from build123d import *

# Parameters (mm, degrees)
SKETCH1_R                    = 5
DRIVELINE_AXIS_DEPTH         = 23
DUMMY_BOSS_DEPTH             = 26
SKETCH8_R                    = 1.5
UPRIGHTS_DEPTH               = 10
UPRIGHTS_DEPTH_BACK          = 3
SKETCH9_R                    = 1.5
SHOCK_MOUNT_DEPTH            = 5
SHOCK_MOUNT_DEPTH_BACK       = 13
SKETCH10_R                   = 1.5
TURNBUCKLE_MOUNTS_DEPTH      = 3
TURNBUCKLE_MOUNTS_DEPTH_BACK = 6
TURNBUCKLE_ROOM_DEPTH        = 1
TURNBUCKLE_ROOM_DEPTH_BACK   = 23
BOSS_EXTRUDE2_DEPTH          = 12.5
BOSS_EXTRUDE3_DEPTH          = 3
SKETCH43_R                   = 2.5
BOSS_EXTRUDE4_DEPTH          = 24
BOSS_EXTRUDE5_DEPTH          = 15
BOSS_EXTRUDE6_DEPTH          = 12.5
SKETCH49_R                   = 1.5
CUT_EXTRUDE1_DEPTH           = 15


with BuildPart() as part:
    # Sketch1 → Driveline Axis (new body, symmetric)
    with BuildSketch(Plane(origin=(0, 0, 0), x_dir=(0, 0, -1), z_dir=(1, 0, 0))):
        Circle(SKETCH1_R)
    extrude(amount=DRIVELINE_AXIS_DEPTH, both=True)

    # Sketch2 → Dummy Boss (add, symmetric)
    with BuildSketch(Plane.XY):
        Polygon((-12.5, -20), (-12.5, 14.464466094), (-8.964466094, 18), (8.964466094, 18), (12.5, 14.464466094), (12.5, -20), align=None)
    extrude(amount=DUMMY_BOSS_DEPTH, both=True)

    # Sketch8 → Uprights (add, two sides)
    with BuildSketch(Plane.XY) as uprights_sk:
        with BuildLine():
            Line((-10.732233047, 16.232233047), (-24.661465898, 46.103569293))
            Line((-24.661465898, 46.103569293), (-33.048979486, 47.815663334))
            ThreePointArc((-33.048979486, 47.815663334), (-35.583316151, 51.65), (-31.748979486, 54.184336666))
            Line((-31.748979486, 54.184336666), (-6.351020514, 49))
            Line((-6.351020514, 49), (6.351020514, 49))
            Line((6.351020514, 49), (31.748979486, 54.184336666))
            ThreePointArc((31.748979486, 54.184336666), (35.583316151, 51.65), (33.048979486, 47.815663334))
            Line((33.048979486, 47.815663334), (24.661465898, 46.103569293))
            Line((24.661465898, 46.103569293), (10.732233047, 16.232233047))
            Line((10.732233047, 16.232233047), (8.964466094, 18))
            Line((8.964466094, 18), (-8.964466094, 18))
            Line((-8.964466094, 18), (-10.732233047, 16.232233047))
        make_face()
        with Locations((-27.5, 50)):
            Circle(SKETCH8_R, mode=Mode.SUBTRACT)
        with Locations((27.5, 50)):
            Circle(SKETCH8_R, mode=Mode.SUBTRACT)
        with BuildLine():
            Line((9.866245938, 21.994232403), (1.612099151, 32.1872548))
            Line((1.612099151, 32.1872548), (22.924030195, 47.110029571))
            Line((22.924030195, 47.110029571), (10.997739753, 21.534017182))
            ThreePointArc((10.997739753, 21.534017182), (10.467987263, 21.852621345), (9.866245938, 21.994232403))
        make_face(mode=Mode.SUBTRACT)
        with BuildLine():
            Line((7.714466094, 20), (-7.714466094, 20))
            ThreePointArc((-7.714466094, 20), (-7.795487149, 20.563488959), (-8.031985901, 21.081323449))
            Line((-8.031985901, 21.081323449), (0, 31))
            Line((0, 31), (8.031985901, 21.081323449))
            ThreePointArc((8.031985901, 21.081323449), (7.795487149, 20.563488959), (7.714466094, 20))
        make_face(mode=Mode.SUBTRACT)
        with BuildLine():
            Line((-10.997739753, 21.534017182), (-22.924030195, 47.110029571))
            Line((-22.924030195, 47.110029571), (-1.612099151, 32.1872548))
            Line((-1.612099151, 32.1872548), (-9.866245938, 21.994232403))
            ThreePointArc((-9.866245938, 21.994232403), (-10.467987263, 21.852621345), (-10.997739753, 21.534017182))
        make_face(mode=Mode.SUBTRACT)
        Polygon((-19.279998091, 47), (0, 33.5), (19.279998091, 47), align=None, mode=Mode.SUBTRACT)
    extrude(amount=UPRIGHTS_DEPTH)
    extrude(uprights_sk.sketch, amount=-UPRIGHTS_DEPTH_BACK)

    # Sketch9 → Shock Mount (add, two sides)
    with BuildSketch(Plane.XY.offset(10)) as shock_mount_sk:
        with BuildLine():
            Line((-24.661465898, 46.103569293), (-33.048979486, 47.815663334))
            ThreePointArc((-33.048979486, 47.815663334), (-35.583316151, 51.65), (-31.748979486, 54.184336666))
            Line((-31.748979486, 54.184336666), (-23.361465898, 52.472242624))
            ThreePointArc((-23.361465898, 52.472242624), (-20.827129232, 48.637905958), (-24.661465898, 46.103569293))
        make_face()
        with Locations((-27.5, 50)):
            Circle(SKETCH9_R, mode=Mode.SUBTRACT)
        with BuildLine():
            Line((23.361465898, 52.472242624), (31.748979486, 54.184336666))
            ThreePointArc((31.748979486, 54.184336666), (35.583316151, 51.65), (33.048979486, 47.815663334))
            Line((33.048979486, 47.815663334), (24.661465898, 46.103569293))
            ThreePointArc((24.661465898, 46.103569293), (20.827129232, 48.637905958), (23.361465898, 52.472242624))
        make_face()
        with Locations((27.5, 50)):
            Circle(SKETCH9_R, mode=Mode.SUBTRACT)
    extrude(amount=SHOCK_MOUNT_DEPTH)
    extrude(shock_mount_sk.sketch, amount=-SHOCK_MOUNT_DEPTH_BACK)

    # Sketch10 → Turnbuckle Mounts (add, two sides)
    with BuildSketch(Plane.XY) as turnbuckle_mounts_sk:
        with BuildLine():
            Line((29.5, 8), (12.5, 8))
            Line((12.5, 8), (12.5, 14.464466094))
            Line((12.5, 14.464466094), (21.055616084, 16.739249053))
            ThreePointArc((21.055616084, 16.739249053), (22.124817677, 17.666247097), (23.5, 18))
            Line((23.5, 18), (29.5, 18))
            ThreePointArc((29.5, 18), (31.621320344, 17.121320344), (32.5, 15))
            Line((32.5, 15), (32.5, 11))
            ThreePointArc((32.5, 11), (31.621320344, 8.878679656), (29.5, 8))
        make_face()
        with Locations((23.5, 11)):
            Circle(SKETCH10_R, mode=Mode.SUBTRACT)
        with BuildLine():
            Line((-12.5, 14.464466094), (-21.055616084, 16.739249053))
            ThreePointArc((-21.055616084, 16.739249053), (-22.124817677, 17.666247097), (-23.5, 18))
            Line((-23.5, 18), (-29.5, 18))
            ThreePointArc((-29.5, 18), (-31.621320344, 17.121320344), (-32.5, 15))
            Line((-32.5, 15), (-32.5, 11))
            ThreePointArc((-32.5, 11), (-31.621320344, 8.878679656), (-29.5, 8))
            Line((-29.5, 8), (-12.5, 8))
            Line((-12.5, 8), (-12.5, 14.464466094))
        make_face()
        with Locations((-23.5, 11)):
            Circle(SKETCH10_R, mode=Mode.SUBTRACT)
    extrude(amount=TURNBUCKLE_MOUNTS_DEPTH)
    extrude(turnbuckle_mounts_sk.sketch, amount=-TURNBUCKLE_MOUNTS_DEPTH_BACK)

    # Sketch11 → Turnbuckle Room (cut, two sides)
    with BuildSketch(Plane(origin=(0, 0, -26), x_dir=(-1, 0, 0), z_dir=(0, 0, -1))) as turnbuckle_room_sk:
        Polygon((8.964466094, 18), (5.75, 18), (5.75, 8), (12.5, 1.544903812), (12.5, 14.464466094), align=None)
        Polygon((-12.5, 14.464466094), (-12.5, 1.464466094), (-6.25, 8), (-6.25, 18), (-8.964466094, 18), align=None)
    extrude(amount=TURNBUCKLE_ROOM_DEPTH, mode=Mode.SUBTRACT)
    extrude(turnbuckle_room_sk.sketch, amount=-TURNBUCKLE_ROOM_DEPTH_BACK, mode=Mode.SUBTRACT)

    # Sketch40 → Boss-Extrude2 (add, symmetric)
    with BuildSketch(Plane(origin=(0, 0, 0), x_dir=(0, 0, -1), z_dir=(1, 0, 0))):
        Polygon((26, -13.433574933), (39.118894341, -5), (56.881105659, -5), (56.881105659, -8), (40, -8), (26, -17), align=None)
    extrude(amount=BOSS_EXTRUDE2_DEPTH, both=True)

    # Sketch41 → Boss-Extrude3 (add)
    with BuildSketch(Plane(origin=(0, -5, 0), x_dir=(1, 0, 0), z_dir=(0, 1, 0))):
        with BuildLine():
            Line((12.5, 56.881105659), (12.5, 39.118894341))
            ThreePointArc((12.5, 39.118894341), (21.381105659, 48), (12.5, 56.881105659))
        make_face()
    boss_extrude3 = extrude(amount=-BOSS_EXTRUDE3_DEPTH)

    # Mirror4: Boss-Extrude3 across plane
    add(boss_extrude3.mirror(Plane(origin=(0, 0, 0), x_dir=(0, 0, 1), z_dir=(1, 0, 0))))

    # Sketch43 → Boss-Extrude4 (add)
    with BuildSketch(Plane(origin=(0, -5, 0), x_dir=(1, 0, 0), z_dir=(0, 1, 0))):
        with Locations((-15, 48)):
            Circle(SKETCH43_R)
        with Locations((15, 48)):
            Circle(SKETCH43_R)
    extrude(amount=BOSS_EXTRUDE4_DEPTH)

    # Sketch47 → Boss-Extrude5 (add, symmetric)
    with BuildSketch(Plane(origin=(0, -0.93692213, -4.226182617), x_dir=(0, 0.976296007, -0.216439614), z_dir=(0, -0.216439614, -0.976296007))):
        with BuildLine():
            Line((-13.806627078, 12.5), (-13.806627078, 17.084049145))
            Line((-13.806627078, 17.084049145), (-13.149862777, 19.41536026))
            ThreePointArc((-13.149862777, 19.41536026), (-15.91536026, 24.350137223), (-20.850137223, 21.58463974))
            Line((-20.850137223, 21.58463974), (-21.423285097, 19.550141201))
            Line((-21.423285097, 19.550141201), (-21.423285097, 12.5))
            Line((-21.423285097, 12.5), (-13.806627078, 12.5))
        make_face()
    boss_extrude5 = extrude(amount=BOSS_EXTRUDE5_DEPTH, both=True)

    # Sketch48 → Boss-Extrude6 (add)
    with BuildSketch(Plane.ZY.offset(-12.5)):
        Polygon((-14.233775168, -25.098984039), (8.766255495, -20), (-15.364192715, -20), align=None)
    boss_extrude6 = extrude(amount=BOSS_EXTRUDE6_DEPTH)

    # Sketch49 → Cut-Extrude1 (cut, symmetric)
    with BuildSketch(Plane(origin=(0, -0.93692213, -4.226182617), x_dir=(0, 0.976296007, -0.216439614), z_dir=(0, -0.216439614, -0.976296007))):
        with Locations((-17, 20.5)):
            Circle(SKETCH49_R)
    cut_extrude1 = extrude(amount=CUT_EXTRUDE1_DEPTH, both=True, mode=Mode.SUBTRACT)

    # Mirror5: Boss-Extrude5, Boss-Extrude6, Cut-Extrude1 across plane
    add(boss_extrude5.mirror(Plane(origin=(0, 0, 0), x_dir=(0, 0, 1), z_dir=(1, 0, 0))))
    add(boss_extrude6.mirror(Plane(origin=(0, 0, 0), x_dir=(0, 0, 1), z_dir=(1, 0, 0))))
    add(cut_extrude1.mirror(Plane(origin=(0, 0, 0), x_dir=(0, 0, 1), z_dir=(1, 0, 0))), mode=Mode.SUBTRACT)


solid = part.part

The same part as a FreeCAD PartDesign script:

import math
import FreeCAD as App
import Part
import Sketcher
Q = App.Units.Quantity


def add_polygon(sketch, points):
    """Adds a closed chain of lines whose ends are joined by coincident constraints."""
    first, n = sketch.GeometryCount, len(points)
    for a, b in zip(points, points[1:] + points[:1]):
        sketch.addGeometry(Part.LineSegment(App.Vector(*a, 0), App.Vector(*b, 0)), False)
    for i in range(n):
        sketch.addConstraint(Sketcher.Constraint("Coincident", first + i, 2, first + (i + 1) % n, 1))

doc = App.newDocument("Part")
params = doc.addObject("Spreadsheet::Sheet", "Params")
for row, (alias, value) in enumerate([
    ("sketch1_diameter", "10 mm"),
    ("pad1_length", "46 mm"),
    ("sketch2_width", "25 mm"),
    ("sketch2_length", "5 mm"),
    ("pad2_length", "52 mm"),
    ("sketch3_diameter", "3 mm"),
    ("sketch3_radius", "2 mm"),
    ("sketch3_radius2", "3.25 mm"),
    ("sketch3_length", "2.5 mm"),
    ("pad3_length", "10 mm"),
    ("pad3_length2", "3 mm"),
    ("sketch4_diameter", "3 mm"),
    ("sketch4_radius", "3.25 mm"),
    ("pad4_length", "5 mm"),
    ("pad4_length2", "13 mm"),
    ("sketch5_diameter", "3 mm"),
    ("sketch5_radius", "3 mm"),
    ("sketch5_width", "17 mm"),
    ("sketch5_width2", "6 mm"),
    ("sketch5_height", "4 mm"),
    ("pad5_length", "3 mm"),
    ("pad5_length2", "6 mm"),
    ("sketch6_height", "10 mm"),
    ("sketch6_height2", "13 mm"),
    ("sketch6_length", "5 mm"),
    ("pocket1_length", "1 mm"),
    ("pocket1_length2", "23 mm"),
    ("sketch7_width", "3 mm"),
    ("pad6_length", "25 mm"),
    ("pad7_length", "3 mm"),
    ("sketch9_diameter", "5 mm"),
    ("pad8_length", "24 mm"),
    ("sketch10_radius", "4 mm"),
    ("pad9_length", "30 mm"),
    ("pad10_length", "12.5 mm"),
    ("sketch12_diameter", "3 mm"),
    ("pocket2_length", "30 mm"),
], start=1):
    params.set(f"A{row}", alias)
    params.set(f"B{row}", "=" + value)
    params.setAlias(f"B{row}", alias)

body = doc.addObject("PartDesign::Body", "Body")

# Sketch on YZ plane
sketch1 = body.newObject("Sketcher::SketchObject", "Sketch")
sketch1.AttachmentSupport = (doc.getObject("YZ_Plane"), [""])
sketch1.MapMode = "FlatFace"
sketch1.addGeometry(Part.Circle(App.Vector(0, 0, 0), App.Vector(0, 0, 1), 5), False)
sketch1.addConstraint(Sketcher.Constraint("Coincident", 0, 3, -1, 1))
sketch1.addConstraint(Sketcher.Constraint("Diameter", 0, 10.0))
sketch1.setExpression("Constraints[1]", "Params.sketch1_diameter")
pad1 = body.newObject("PartDesign::Pad", "Pad")
pad1.Profile = sketch1
pad1.setExpression("Length", "Params.pad1_length")
pad1.Midplane = True

# Sketch on XY plane
sketch2 = body.newObject("Sketcher::SketchObject", "Sketch001")
sketch2.AttachmentSupport = (doc.getObject("XY_Plane"), [""])
sketch2.MapMode = "FlatFace"
add_polygon(sketch2, [(-12.5, 14.464466), (-12.5, -20), (12.5, -20), (12.5, 14.464466), (8.964466, 18), (-8.964466, 18)])  # lines 0-5
sketch2.addConstraint(Sketcher.Constraint("Vertical", 0))
sketch2.addConstraint(Sketcher.Constraint("Horizontal", 1))
sketch2.addConstraint(Sketcher.Constraint("Vertical", 2))
sketch2.addConstraint(Sketcher.Constraint("Horizontal", 4))
sketch2.addConstraint(Sketcher.Constraint("Symmetric", 2, 2, 5, 2, -2))
sketch2.addConstraint(Sketcher.Constraint("Perpendicular", 3, 5))
sketch2.addConstraint(Sketcher.Constraint("Equal", 3, 5))
sketch2.addConstraint(Sketcher.Constraint("DistanceX", 1, 1, 1, 2, 25.0))
sketch2.addConstraint(Sketcher.Constraint("Distance", 3, 5.0))
sketch2.addConstraint(Sketcher.Constraint("DistanceY", 0, 2, -1, 1, 20.0))
sketch2.addConstraint(Sketcher.Constraint("DistanceY", -1, 1, 3, 2, 18.0))
sketch2.setExpression("Constraints[13]", "Params.sketch2_width")
sketch2.setExpression("Constraints[14]", "Params.sketch2_length")
pad2 = body.newObject("PartDesign::Pad", "Pad001")
pad2.Profile = sketch2
pad2.setExpression("Length", "Params.pad2_length")
pad2.Midplane = True

# Sketch on XY plane
sketch3 = body.newObject("Sketcher::SketchObject", "Sketch002")
sketch3.AttachmentSupport = (doc.getObject("XY_Plane"), [""])
sketch3.MapMode = "FlatFace"
sketch3.addGeometry(Part.LineSegment(App.Vector(-24.661466, 46.103569, 0), App.Vector(-10.732233, 16.232233, 0)), False)  # 0
sketch3.addGeometry(Part.LineSegment(App.Vector(-10.732233, 16.232233, 0), App.Vector(-8.964466, 18, 0)), False)  # 1
sketch3.addGeometry(Part.LineSegment(App.Vector(-8.964466, 18, 0), App.Vector(8.964466, 18, 0)), False)  # 2
sketch3.addGeometry(Part.LineSegment(App.Vector(8.964466, 18, 0), App.Vector(10.732233, 16.232233, 0)), False)  # 3
sketch3.addGeometry(Part.LineSegment(App.Vector(10.732233, 16.232233, 0), App.Vector(24.661466, 46.103569, 0)), False)  # 4
sketch3.addGeometry(Part.LineSegment(App.Vector(24.661466, 46.103569, 0), App.Vector(33.048979, 47.815663, 0)), False)  # 5
sketch3.addGeometry(Part.ArcOfCircle(Part.Circle(App.Vector(32.398979, 51, 0), App.Vector(0, 0, 1), 3.25), math.radians(-78.463041), math.radians(101.536959)), False)  # 6
sketch3.addGeometry(Part.LineSegment(App.Vector(31.748979, 54.184337, 0), App.Vector(6.351021, 49, 0)), False)  # 7
sketch3.addGeometry(Part.LineSegment(App.Vector(6.351021, 49, 0), App.Vector(-6.351021, 49, 0)), False)  # 8
sketch3.addGeometry(Part.LineSegment(App.Vector(-6.351021, 49, 0), App.Vector(-31.748979, 54.184337, 0)), False)  # 9
sketch3.addGeometry(Part.ArcOfCircle(Part.Circle(App.Vector(-32.398979, 51, 0), App.Vector(0, 0, 1), 3.25), math.radians(78.463041), math.radians(258.463041)), False)  # 10
sketch3.addGeometry(Part.LineSegment(App.Vector(-33.048979, 47.815663, 0), App.Vector(-24.661466, 46.103569, 0)), False)  # 11
sketch3.addGeometry(Part.LineSegment(App.Vector(9.866246, 21.994232, 0), App.Vector(1.612099, 32.187255, 0)), False)  # 12
sketch3.addGeometry(Part.LineSegment(App.Vector(1.612099, 32.187255, 0), App.Vector(22.92403, 47.11003, 0)), False)  # 13
sketch3.addGeometry(Part.LineSegment(App.Vector(22.92403, 47.11003, 0), App.Vector(10.99774, 21.534017, 0)), False)  # 14
sketch3.addGeometry(Part.ArcOfCircle(Part.Circle(App.Vector(9.714466, 20, 0), App.Vector(0, 0, 1), 2), math.radians(50.086018), math.radians(85.647643)), False)  # 15
sketch3.addGeometry(Part.LineSegment(App.Vector(7.714466, 20, 0), App.Vector(-7.714466, 20, 0)), False)  # 16
sketch3.addGeometry(Part.ArcOfCircle(Part.Circle(App.Vector(-9.714466, 20, 0), App.Vector(0, 0, 1), 2), math.radians(0), math.radians(32.728697)), False)  # 17
sketch3.addGeometry(Part.LineSegment(App.Vector(-8.031986, 21.081323, 0), App.Vector(0, 31, 0)), False)  # 18
sketch3.addGeometry(Part.LineSegment(App.Vector(0, 31, 0), App.Vector(8.031986, 21.081323, 0)), False)  # 19
sketch3.addGeometry(Part.ArcOfCircle(Part.Circle(App.Vector(9.714466, 20, 0), App.Vector(0, 0, 1), 2), math.radians(147.271303), math.radians(180)), False)  # 20
sketch3.addGeometry(Part.LineSegment(App.Vector(-10.99774, 21.534017, 0), App.Vector(-22.92403, 47.11003, 0)), False)  # 21
sketch3.addGeometry(Part.LineSegment(App.Vector(-22.92403, 47.11003, 0), App.Vector(-1.612099, 32.187255, 0)), False)  # 22
sketch3.addGeometry(Part.LineSegment(App.Vector(-1.612099, 32.187255, 0), App.Vector(-9.866246, 21.994232, 0)), False)  # 23
sketch3.addGeometry(Part.ArcOfCircle(Part.Circle(App.Vector(-9.714466, 20, 0), App.Vector(0, 0, 1), 2), math.radians(94.352357), math.radians(129.913982)), False)  # 24
sketch3.addGeometry(Part.Circle(App.Vector(27.5, 50, 0), App.Vector(0, 0, 1), 1.5), False)  # 25
add_polygon(sketch3, [(-19.279998, 47), (19.279998, 47), (0, 33.5)])  # lines 26-28
sketch3.addGeometry(Part.Circle(App.Vector(-27.5, 50, 0), App.Vector(0, 0, 1), 1.5), False)  # 29
sketch3.addConstraint(Sketcher.Constraint("Coincident", 0, 2, 1, 1))
sketch3.addConstraint(Sketcher.Constraint("Coincident", 1, 2, 2, 1))
sketch3.addConstraint(Sketcher.Constraint("Coincident", 2, 2, 3, 1))
sketch3.addConstraint(Sketcher.Constraint("Coincident", 3, 2, 4, 1))
sketch3.addConstraint(Sketcher.Constraint("Coincident", 4, 2, 5, 1))
sketch3.addConstraint(Sketcher.Constraint("Tangent", 5, 2, 6, 1))
sketch3.addConstraint(Sketcher.Constraint("Tangent", 6, 2, 7, 1))
sketch3.addConstraint(Sketcher.Constraint("Coincident", 7, 2, 8, 1))
sketch3.addConstraint(Sketcher.Constraint("Coincident", 8, 2, 9, 1))
sketch3.addConstraint(Sketcher.Constraint("Tangent", 9, 2, 10, 1))
sketch3.addConstraint(Sketcher.Constraint("Tangent", 10, 2, 11, 1))
sketch3.addConstraint(Sketcher.Constraint("Coincident", 11, 2, 0, 1))
sketch3.addConstraint(Sketcher.Constraint("Coincident", 12, 2, 13, 1))
sketch3.addConstraint(Sketcher.Constraint("Coincident", 13, 2, 14, 1))
sketch3.addConstraint(Sketcher.Constraint("Coincident", 14, 2, 15, 1))
sketch3.addConstraint(Sketcher.Constraint("Coincident", 15, 2, 12, 1))
sketch3.addConstraint(Sketcher.Constraint("Coincident", 16, 2, 17, 1))
sketch3.addConstraint(Sketcher.Constraint("Coincident", 17, 2, 18, 1))
sketch3.addConstraint(Sketcher.Constraint("Coincident", 18, 2, 19, 1))
sketch3.addConstraint(Sketcher.Constraint("Coincident", 19, 2, 20, 1))
sketch3.addConstraint(Sketcher.Constraint("Coincident", 20, 2, 16, 1))
sketch3.addConstraint(Sketcher.Constraint("Coincident", 21, 2, 22, 1))
sketch3.addConstraint(Sketcher.Constraint("Coincident", 22, 2, 23, 1))
sketch3.addConstraint(Sketcher.Constraint("Coincident", 23, 2, 24, 1))
sketch3.addConstraint(Sketcher.Constraint("Coincident", 24, 2, 21, 1))
sketch3.addConstraint(Sketcher.Constraint("Horizontal", 2))
sketch3.addConstraint(Sketcher.Constraint("Horizontal", 8))
sketch3.addConstraint(Sketcher.Constraint("Horizontal", 16))
sketch3.addConstraint(Sketcher.Constraint("Horizontal", 26))
sketch3.addConstraint(Sketcher.Constraint("Coincident", 20, 3, 15, 3))
sketch3.addConstraint(Sketcher.Constraint("Coincident", 24, 3, 17, 3))
sketch3.addConstraint(Sketcher.Constraint("Equal", 6, 10))
sketch3.addConstraint(Sketcher.Constraint("Equal", 15, 17))
sketch3.addConstraint(Sketcher.Constraint("Equal", 17, 20))
sketch3.addConstraint(Sketcher.Constraint("Equal", 20, 24))
sketch3.addConstraint(Sketcher.Constraint("Equal", 25, 29))
sketch3.addConstraint(Sketcher.Constraint("Symmetric", 6, 3, 10, 3, -2))
sketch3.addConstraint(Sketcher.Constraint("Symmetric", 15, 3, 17, 3, -2))
sketch3.addConstraint(Sketcher.Constraint("Symmetric", 25, 3, 29, 3, -2))
sketch3.addConstraint(Sketcher.Constraint("Symmetric", 0, 2, 3, 2, -2))
sketch3.addConstraint(Sketcher.Constraint("Symmetric", 4, 2, 11, 2, -2))
sketch3.addConstraint(Sketcher.Constraint("Symmetric", 13, 2, 21, 2, -2))
sketch3.addConstraint(Sketcher.Constraint("Symmetric", 12, 2, 22, 2, -2))
sketch3.addConstraint(Sketcher.Constraint("PointOnObject", 18, 2, -2))
sketch3.addConstraint(Sketcher.Constraint("PointOnObject", 27, 2, -2))
sketch3.addConstraint(Sketcher.Constraint("Perpendicular", 1, 3))
sketch3.addConstraint(Sketcher.Constraint("Parallel", 5, 7))
sketch3.addConstraint(Sketcher.Constraint("Parallel", 9, 11))
sketch3.addConstraint(Sketcher.Constraint("Parallel", 4, 14))
sketch3.addConstraint(Sketcher.Constraint("Parallel", 12, 19))
sketch3.addConstraint(Sketcher.Constraint("Parallel", 0, 21))
sketch3.addConstraint(Sketcher.Constraint("Parallel", 18, 23))
sketch3.addConstraint(Sketcher.Constraint("Parallel", 13, 27))
sketch3.addConstraint(Sketcher.Constraint("Parallel", 22, 28))
sketch3.addConstraint(Sketcher.Constraint("Horizontal", 24, 3, 16, 2))
sketch3.addConstraint(Sketcher.Constraint("Horizontal", 17, 2, 19, 2))
sketch3.addConstraint(Sketcher.Constraint("Equal", 1, 3))
sketch3.addConstraint(Sketcher.Constraint("Diameter", 25, 3.0))
sketch3.addConstraint(Sketcher.Constraint("Radius", 15, 2.0))
sketch3.addConstraint(Sketcher.Constraint("Angle", 0, Q("-65 deg")))
sketch3.addConstraint(Sketcher.Constraint("Angle", 12, Q("129 deg")))
sketch3.addConstraint(Sketcher.Constraint("Angle", 13, Q("35 deg")))
sketch3.addConstraint(Sketcher.Constraint("Radius", 6, 3.25))
sketch3.addConstraint(Sketcher.Constraint("DistanceY", -1, 1, 6, 3, 51.0))
sketch3.addConstraint(Sketcher.Constraint("DistanceY", -1, 1, 15, 3, 20.0))
sketch3.addConstraint(Sketcher.Constraint("DistanceY", -1, 1, 25, 3, 50.0))
sketch3.addConstraint(Sketcher.Constraint("DistanceY", -1, 1, 1, 2, 18.0))
sketch3.addConstraint(Sketcher.Constraint("DistanceY", -1, 1, 7, 2, 49.0))
sketch3.addConstraint(Sketcher.Constraint("DistanceY", -1, 1, 18, 2, 31.0))
sketch3.addConstraint(Sketcher.Constraint("DistanceY", -1, 1, 26, 2, 47.0))
sketch3.addConstraint(Sketcher.Constraint("Distance", 1, 2.5))
sketch3.addConstraint(Sketcher.Constraint("DistanceX", -1, 1, 25, 3, 27.5))
sketch3.addConstraint(Sketcher.Constraint("DistanceY", -1, 1, 27, 2, 33.5))
sketch3.addConstraint(Sketcher.Constraint("DistanceX", 6, 2, 5, 2, 1.3))
sketch3.addConstraint(Sketcher.Constraint("DistanceX", 9, 2, 7, 2, 38.1))
sketch3.addConstraint(Sketcher.Constraint("DistanceX", 17, 3, 1, 2, 0.75))
sketch3.addConstraint(Sketcher.Constraint("DistanceX", 15, 3, 4, 2, 14.947))
sketch3.addConstraint(Sketcher.Constraint("DistanceY", 3, 2, 15, 2, 5.761999))
sketch3.addConstraint(Sketcher.Constraint("DistanceX", -1, 1, 12, 2, 1.612099))
sketch3.addConstraint(Sketcher.Constraint("DistanceX", -1, 1, 13, 2, 22.92403))
sketch3.setExpression("Constraints[60]", "Params.sketch3_diameter")
sketch3.setExpression("Constraints[61]", "Params.sketch3_radius")
sketch3.setExpression("Constraints[65]", "Params.sketch3_radius2")
sketch3.setExpression("Constraints[73]", "Params.sketch3_length")
pad3 = body.newObject("PartDesign::Pad", "Pad002")
pad3.Profile = sketch3
pad3.Type = "TwoLengths"
pad3.setExpression("Length", "Params.pad3_length")
pad3.setExpression("Length2", "Params.pad3_length2")

# Sketch on XY plane
sketch4 = body.newObject("Sketcher::SketchObject", "Sketch003")
sketch4.AttachmentSupport = (doc.getObject("XY_Plane"), [""])
sketch4.MapMode = "FlatFace"
sketch4.AttachmentOffset = App.Placement(App.Vector(0, 0, 10), App.Rotation())
sketch4.addGeometry(Part.LineSegment(App.Vector(-33.048979, 47.815663, 0), App.Vector(-24.661466, 46.103569, 0)), False)
sketch4.addGeometry(Part.ArcOfCircle(Part.Circle(App.Vector(-24.011466, 49.287906, 0), App.Vector(0, 0, 1), 3.25), math.radians(-101.536959), math.radians(78.463041)), False)
sketch4.addGeometry(Part.LineSegment(App.Vector(-23.361466, 52.472243, 0), App.Vector(-31.748979, 54.184337, 0)), False)
sketch4.addGeometry(Part.ArcOfCircle(Part.Circle(App.Vector(-32.398979, 51, 0), App.Vector(0, 0, 1), 3.25), math.radians(78.463041), math.radians(258.463041)), False)
sketch4.addGeometry(Part.Circle(App.Vector(-27.5, 50, 0), App.Vector(0, 0, 1), 1.5), False)
sketch4.addGeometry(Part.LineSegment(App.Vector(31.748979, 54.184337, 0), App.Vector(23.361466, 52.472243, 0)), False)
sketch4.addGeometry(Part.ArcOfCircle(Part.Circle(App.Vector(24.011466, 49.287906, 0), App.Vector(0, 0, 1), 3.25), math.radians(101.536959), math.radians(281.536959)), False)
sketch4.addGeometry(Part.LineSegment(App.Vector(24.661466, 46.103569, 0), App.Vector(33.048979, 47.815663, 0)), False)
sketch4.addGeometry(Part.ArcOfCircle(Part.Circle(App.Vector(32.398979, 51, 0), App.Vector(0, 0, 1), 3.25), math.radians(-78.463041), math.radians(101.536959)), False)
sketch4.addGeometry(Part.Circle(App.Vector(27.5, 50, 0), App.Vector(0, 0, 1), 1.5), False)
sketch4.addConstraint(Sketcher.Constraint("Tangent", 0, 2, 1, 1))
sketch4.addConstraint(Sketcher.Constraint("Tangent", 1, 2, 2, 1))
sketch4.addConstraint(Sketcher.Constraint("Tangent", 2, 2, 3, 1))
sketch4.addConstraint(Sketcher.Constraint("Tangent", 3, 2, 0, 1))
sketch4.addConstraint(Sketcher.Constraint("Tangent", 5, 2, 6, 1))
sketch4.addConstraint(Sketcher.Constraint("Tangent", 6, 2, 7, 1))
sketch4.addConstraint(Sketcher.Constraint("Tangent", 7, 2, 8, 1))
sketch4.addConstraint(Sketcher.Constraint("Tangent", 8, 2, 5, 1))
sketch4.addConstraint(Sketcher.Constraint("Equal", 1, 3))
sketch4.addConstraint(Sketcher.Constraint("Equal", 3, 6))
sketch4.addConstraint(Sketcher.Constraint("Equal", 6, 8))
sketch4.addConstraint(Sketcher.Constraint("Equal", 4, 9))
sketch4.addConstraint(Sketcher.Constraint("Symmetric", 1, 3, 6, 3, -2))
sketch4.addConstraint(Sketcher.Constraint("Symmetric", 3, 3, 8, 3, -2))
sketch4.addConstraint(Sketcher.Constraint("Symmetric", 4, 3, 9, 3, -2))
sketch4.addConstraint(Sketcher.Constraint("Diameter", 4, 3.0))
sketch4.addConstraint(Sketcher.Constraint("Radius", 1, 3.25))
sketch4.addConstraint(Sketcher.Constraint("DistanceY", -1, 1, 3, 3, 51.0))
sketch4.addConstraint(Sketcher.Constraint("DistanceY", -1, 1, 4, 3, 50.0))
sketch4.addConstraint(Sketcher.Constraint("DistanceX", 4, 3, 9, 3, 55.0))
sketch4.addConstraint(Sketcher.Constraint("DistanceX", 0, 2, 1, 2, 1.3))
sketch4.addConstraint(Sketcher.Constraint("Distance", 0, 8.56047))
sketch4.addConstraint(Sketcher.Constraint("DistanceX", 3, 3, -1, 1, 32.398979))
sketch4.setExpression("Constraints[15]", "Params.sketch4_diameter")
sketch4.setExpression("Constraints[16]", "Params.sketch4_radius")
pad4 = body.newObject("PartDesign::Pad", "Pad003")
pad4.Profile = sketch4
pad4.Type = "TwoLengths"
pad4.setExpression("Length", "Params.pad4_length")
pad4.setExpression("Length2", "Params.pad4_length2")

# Sketch on XY plane
sketch5 = body.newObject("Sketcher::SketchObject", "Sketch004")
sketch5.AttachmentSupport = (doc.getObject("XY_Plane"), [""])
sketch5.MapMode = "FlatFace"
sketch5.addGeometry(Part.LineSegment(App.Vector(12.5, 8, 0), App.Vector(29.5, 8, 0)), False)
sketch5.addGeometry(Part.ArcOfCircle(Part.Circle(App.Vector(29.5, 11, 0), App.Vector(0, 0, 1), 3), math.radians(-90), math.radians(0)), False)
sketch5.addGeometry(Part.LineSegment(App.Vector(32.5, 11, 0), App.Vector(32.5, 15, 0)), False)
sketch5.addGeometry(Part.ArcOfCircle(Part.Circle(App.Vector(29.5, 15, 0), App.Vector(0, 0, 1), 3), math.radians(0), math.radians(90)), False)
sketch5.addGeometry(Part.LineSegment(App.Vector(29.5, 18, 0), App.Vector(23.5, 18, 0)), False)
sketch5.addGeometry(Part.ArcOfCircle(Part.Circle(App.Vector(23.5, 15, 0), App.Vector(0, 0, 1), 3), math.radians(90), math.radians(144.567061)), False)
sketch5.addGeometry(Part.LineSegment(App.Vector(21.055616, 16.739249, 0), App.Vector(12.5, 14.464466, 0)), False)
sketch5.addGeometry(Part.LineSegment(App.Vector(12.5, 14.464466, 0), App.Vector(12.5, 8, 0)), False)
sketch5.addGeometry(Part.Circle(App.Vector(23.5, 11, 0), App.Vector(0, 0, 1), 1.5), False)
sketch5.addGeometry(Part.LineSegment(App.Vector(-12.5, 14.464466, 0), App.Vector(-21.055616, 16.739249, 0)), False)
sketch5.addGeometry(Part.ArcOfCircle(Part.Circle(App.Vector(-23.5, 15, 0), App.Vector(0, 0, 1), 3), math.radians(35.432939), math.radians(90)), False)
sketch5.addGeometry(Part.LineSegment(App.Vector(-23.5, 18, 0), App.Vector(-29.5, 18, 0)), False)
sketch5.addGeometry(Part.ArcOfCircle(Part.Circle(App.Vector(-29.5, 15, 0), App.Vector(0, 0, 1), 3), math.radians(90), math.radians(180)), False)
sketch5.addGeometry(Part.LineSegment(App.Vector(-32.5, 15, 0), App.Vector(-32.5, 11, 0)), False)
sketch5.addGeometry(Part.ArcOfCircle(Part.Circle(App.Vector(-29.5, 11, 0), App.Vector(0, 0, 1), 3), math.radians(180), math.radians(270)), False)
sketch5.addGeometry(Part.LineSegment(App.Vector(-29.5, 8, 0), App.Vector(-12.5, 8, 0)), False)
sketch5.addGeometry(Part.LineSegment(App.Vector(-12.5, 8, 0), App.Vector(-12.5, 14.464466, 0)), False)
sketch5.addGeometry(Part.Circle(App.Vector(-23.5, 11, 0), App.Vector(0, 0, 1), 1.5), False)
sketch5.addConstraint(Sketcher.Constraint("Tangent", 0, 2, 1, 1))
sketch5.addConstraint(Sketcher.Constraint("Tangent", 1, 2, 2, 1))
sketch5.addConstraint(Sketcher.Constraint("Tangent", 2, 2, 3, 1))
sketch5.addConstraint(Sketcher.Constraint("Tangent", 3, 2, 4, 1))
sketch5.addConstraint(Sketcher.Constraint("Tangent", 4, 2, 5, 1))
sketch5.addConstraint(Sketcher.Constraint("Coincident", 5, 2, 6, 1))
sketch5.addConstraint(Sketcher.Constraint("Coincident", 6, 2, 7, 1))
sketch5.addConstraint(Sketcher.Constraint("Coincident", 7, 2, 0, 1))
sketch5.addConstraint(Sketcher.Constraint("Coincident", 9, 2, 10, 1))
sketch5.addConstraint(Sketcher.Constraint("Tangent", 10, 2, 11, 1))
sketch5.addConstraint(Sketcher.Constraint("Tangent", 11, 2, 12, 1))
sketch5.addConstraint(Sketcher.Constraint("Tangent", 12, 2, 13, 1))
sketch5.addConstraint(Sketcher.Constraint("Tangent", 13, 2, 14, 1))
sketch5.addConstraint(Sketcher.Constraint("Tangent", 14, 2, 15, 1))
sketch5.addConstraint(Sketcher.Constraint("Coincident", 15, 2, 16, 1))
sketch5.addConstraint(Sketcher.Constraint("Coincident", 16, 2, 9, 1))
sketch5.addConstraint(Sketcher.Constraint("Horizontal", 0))
sketch5.addConstraint(Sketcher.Constraint("Vertical", 2))
sketch5.addConstraint(Sketcher.Constraint("Horizontal", 4))
sketch5.addConstraint(Sketcher.Constraint("Vertical", 7))
sketch5.addConstraint(Sketcher.Constraint("Horizontal", 11))
sketch5.addConstraint(Sketcher.Constraint("Vertical", 13))
sketch5.addConstraint(Sketcher.Constraint("Horizontal", 15))
sketch5.addConstraint(Sketcher.Constraint("Vertical", 16))
sketch5.addConstraint(Sketcher.Constraint("Equal", 1, 3))
sketch5.addConstraint(Sketcher.Constraint("Equal", 3, 5))
sketch5.addConstraint(Sketcher.Constraint("Equal", 5, 10))
sketch5.addConstraint(Sketcher.Constraint("Equal", 10, 12))
sketch5.addConstraint(Sketcher.Constraint("Equal", 12, 14))
sketch5.addConstraint(Sketcher.Constraint("Equal", 8, 17))
sketch5.addConstraint(Sketcher.Constraint("Symmetric", 5, 3, 10, 3, -2))
sketch5.addConstraint(Sketcher.Constraint("Symmetric", 1, 3, 14, 3, -2))
sketch5.addConstraint(Sketcher.Constraint("Symmetric", 8, 3, 17, 3, -2))
sketch5.addConstraint(Sketcher.Constraint("Symmetric", 6, 2, 16, 2, -2))
sketch5.addConstraint(Sketcher.Constraint("Horizontal", 1, 3, 8, 3))
sketch5.addConstraint(Sketcher.Constraint("Horizontal", 5, 2, 9, 2))
sketch5.addConstraint(Sketcher.Constraint("Vertical", 5, 3, 8, 3))
sketch5.addConstraint(Sketcher.Constraint("Diameter", 8, 3.0))
sketch5.addConstraint(Sketcher.Constraint("Radius", 1, 3.0))
sketch5.addConstraint(Sketcher.Constraint("DistanceX", 0, 1, 0, 2, 17.0))
sketch5.addConstraint(Sketcher.Constraint("DistanceX", 4, 2, 4, 1, 6.0))
sketch5.addConstraint(Sketcher.Constraint("DistanceY", 2, 1, 2, 2, 4.0))
sketch5.addConstraint(Sketcher.Constraint("DistanceY", -1, 1, 1, 3, 11.0))
sketch5.addConstraint(Sketcher.Constraint("DistanceX", 10, 3, 5, 3, 47.0))
sketch5.addConstraint(Sketcher.Constraint("DistanceY", 7, 2, 7, 1, 6.464466))
sketch5.addConstraint(Sketcher.Constraint("DistanceY", -1, 1, 5, 2, 16.739249))
sketch5.setExpression("Constraints[37]", "Params.sketch5_diameter")
sketch5.setExpression("Constraints[38]", "Params.sketch5_radius")
sketch5.setExpression("Constraints[39]", "Params.sketch5_width")
sketch5.setExpression("Constraints[40]", "Params.sketch5_width2")
sketch5.setExpression("Constraints[41]", "Params.sketch5_height")
pad5 = body.newObject("PartDesign::Pad", "Pad004")
pad5.Profile = sketch5
pad5.Type = "TwoLengths"
pad5.setExpression("Length", "Params.pad5_length")
pad5.setExpression("Length2", "Params.pad5_length2")

# Sketch on XY plane
sketch6 = body.newObject("Sketcher::SketchObject", "Sketch005")
sketch6.AttachmentSupport = (doc.getObject("XY_Plane"), [""])
sketch6.MapMode = "FlatFace"
sketch6.AttachmentOffset = App.Placement(App.Vector(0, 0, -26), App.Rotation())
add_polygon(sketch6, [(-8.964466, 18), (-5.75, 18), (-5.75, 8), (-12.5, 1.544904), (-12.5, 14.464466)])  # lines 0-4
add_polygon(sketch6, [(12.5, 14.464466), (12.5, 1.464466), (6.25, 8), (6.25, 18), (8.964466, 18)])  # lines 5-9
sketch6.addConstraint(Sketcher.Constraint("Horizontal", 0))
sketch6.addConstraint(Sketcher.Constraint("Vertical", 1))
sketch6.addConstraint(Sketcher.Constraint("Vertical", 3))
sketch6.addConstraint(Sketcher.Constraint("Vertical", 5))
sketch6.addConstraint(Sketcher.Constraint("Vertical", 7))
sketch6.addConstraint(Sketcher.Constraint("Horizontal", 8))
sketch6.addConstraint(Sketcher.Constraint("Symmetric", 4, 2, 8, 2, -2))
sketch6.addConstraint(Sketcher.Constraint("Symmetric", 3, 2, 9, 2, -2))
sketch6.addConstraint(Sketcher.Constraint("Perpendicular", 2, 6))
sketch6.addConstraint(Sketcher.Constraint("Perpendicular", 4, 9))
sketch6.addConstraint(Sketcher.Constraint("Horizontal", 1, 2, 6, 2))
sketch6.addConstraint(Sketcher.Constraint("DistanceY", 1, 2, 1, 1, 10.0))
sketch6.addConstraint(Sketcher.Constraint("DistanceY", 5, 2, 5, 1, 13.0))
sketch6.addConstraint(Sketcher.Constraint("Distance", 4, 5.0))
sketch6.addConstraint(Sketcher.Constraint("DistanceY", -1, 1, 0, 2, 18.0))
sketch6.addConstraint(Sketcher.Constraint("DistanceX", 2, 2, 5, 2, 25.0))
sketch6.addConstraint(Sketcher.Constraint("DistanceX", 1, 2, 6, 2, 12.0))
sketch6.addConstraint(Sketcher.Constraint("DistanceX", 0, 2, -1, 1, 5.75))
sketch6.setExpression("Constraints[21]", "Params.sketch6_height")
sketch6.setExpression("Constraints[22]", "Params.sketch6_height2")
sketch6.setExpression("Constraints[23]", "Params.sketch6_length")
pocket1 = body.newObject("PartDesign::Pocket", "Pocket")
pocket1.Profile = sketch6
pocket1.Type = "TwoLengths"
pocket1.setExpression("Length", "Params.pocket1_length")
pocket1.setExpression("Length2", "Params.pocket1_length2")

# Sketch on YZ plane
sketch7 = body.newObject("Sketcher::SketchObject", "Sketch006")
sketch7.AttachmentSupport = (doc.getObject("YZ_Plane"), [""])
sketch7.MapMode = "FlatFace"
add_polygon(sketch7, [(-5, -39.118894), (-13.433575, -26), (-17, -26), (-8, -40), (-8, -56.881106), (-5, -56.881106)])  # lines 0-5
sketch7.addConstraint(Sketcher.Constraint("Horizontal", 1))
sketch7.addConstraint(Sketcher.Constraint("Vertical", 3))
sketch7.addConstraint(Sketcher.Constraint("Horizontal", 4))
sketch7.addConstraint(Sketcher.Constraint("Vertical", 5))
sketch7.addConstraint(Sketcher.Constraint("Parallel", 0, 2))
sketch7.addConstraint(Sketcher.Constraint("DistanceX", 4, 1, 4, 2, 3.0))
sketch7.addConstraint(Sketcher.Constraint("DistanceY", 0, 2, -1, 1, 26.0))
sketch7.addConstraint(Sketcher.Constraint("DistanceX", 1, 2, -1, 1, 17.0))
sketch7.addConstraint(Sketcher.Constraint("DistanceX", 2, 2, -1, 1, 8.0))
sketch7.addConstraint(Sketcher.Constraint("DistanceY", 2, 2, -1, 1, 40.0))
sketch7.addConstraint(Sketcher.Constraint("DistanceY", 5, 1, 5, 2, 17.762211))
sketch7.addConstraint(Sketcher.Constraint("Distance", 0, 15.595851))
sketch7.setExpression("Constraints[11]", "Params.sketch7_width")
pad6 = body.newObject("PartDesign::Pad", "Pad005")
pad6.Profile = sketch7
pad6.setExpression("Length", "Params.pad6_length")
pad6.Midplane = True

# Sketch on XZ plane
sketch8 = body.newObject("Sketcher::SketchObject", "Sketch007")
sketch8.AttachmentSupport = (doc.getObject("XZ_Plane"), [""])
sketch8.MapMode = "FlatFace"
sketch8.AttachmentOffset = App.Placement(App.Vector(0, 0, 5), App.Rotation())
sketch8.addGeometry(Part.LineSegment(App.Vector(12.5, -56.881106, 0), App.Vector(12.5, -39.118894, 0)), False)
sketch8.addGeometry(Part.ArcOfCircle(Part.Circle(App.Vector(12.5, -48, 0), App.Vector(0, 0, 1), 8.881106), math.radians(-90), math.radians(90)), False)
sketch8.addConstraint(Sketcher.Constraint("Coincident", 0, 1, 1, 1))
sketch8.addConstraint(Sketcher.Constraint("Coincident", 1, 2, 0, 2))
sketch8.addConstraint(Sketcher.Constraint("Vertical", 0))
sketch8.addConstraint(Sketcher.Constraint("Vertical", 1, 3, 0, 1))
sketch8.addConstraint(Sketcher.Constraint("DistanceY", 1, 3, -1, 1, 48.0))
sketch8.addConstraint(Sketcher.Constraint("DistanceX", -1, 1, 1, 3, 12.5))
sketch8.addConstraint(Sketcher.Constraint("Radius", 1, 8.881106))
pad7 = body.newObject("PartDesign::Pad", "Pad006")
pad7.Profile = sketch8
pad7.setExpression("Length", "Params.pad7_length")
doc.recompute()

mirrored = body.newObject("PartDesign::Mirrored", "Mirrored")
mirrored.Originals = [pad7]
mirrored.MirrorPlane = (doc.getObject("YZ_Plane"), [""])
body.Tip = mirrored

# Sketch on XZ plane
sketch9 = body.newObject("Sketcher::SketchObject", "Sketch008")
sketch9.AttachmentSupport = (doc.getObject("XZ_Plane"), [""])
sketch9.MapMode = "FlatFace"
sketch9.AttachmentOffset = App.Placement(App.Vector(0, 0, 5), App.Rotation())
sketch9.addGeometry(Part.Circle(App.Vector(-15, -48, 0), App.Vector(0, 0, 1), 2.5), False)
sketch9.addGeometry(Part.Circle(App.Vector(15, -48, 0), App.Vector(0, 0, 1), 2.5), False)
sketch9.addConstraint(Sketcher.Constraint("Equal", 0, 1))
sketch9.addConstraint(Sketcher.Constraint("Symmetric", 0, 3, 1, 3, -2))
sketch9.addConstraint(Sketcher.Constraint("Diameter", 0, 5.0))
sketch9.addConstraint(Sketcher.Constraint("DistanceX", 0, 3, -1, 1, 15.0))
sketch9.addConstraint(Sketcher.Constraint("DistanceY", 0, 3, -1, 1, 48.0))
sketch9.setExpression("Constraints[2]", "Params.sketch9_diameter")
pad8 = body.newObject("PartDesign::Pad", "Pad007")
pad8.Profile = sketch9
pad8.setExpression("Length", "Params.pad8_length")
pad8.Reversed = True

# Sketch on an angled plane
sketch10 = body.newObject("Sketcher::SketchObject", "Sketch009")
sketch10.Placement = App.Placement(App.Vector(0, -0.936922, -4.226183), App.Rotation(App.Vector(0, 0.976296007, -0.216439614), App.Vector(1, 0, 0), App.Vector(0, -0.216439614, -0.976296007), "ZXY"))
sketch10.addGeometry(Part.LineSegment(App.Vector(-13.806627, 12.5, 0), App.Vector(-13.806627, 17.084049, 0)), False)
sketch10.addGeometry(Part.LineSegment(App.Vector(-13.806627, 17.084049, 0), App.Vector(-13.149863, 19.41536, 0)), False)
sketch10.addGeometry(Part.ArcOfCircle(Part.Circle(App.Vector(-17, 20.5, 0), App.Vector(0, 0, 1), 4), math.radians(-15.733301), math.radians(164.266699)), False)
sketch10.addGeometry(Part.LineSegment(App.Vector(-20.850137, 21.58464, 0), App.Vector(-21.423285, 19.550141, 0)), False)
sketch10.addGeometry(Part.LineSegment(App.Vector(-21.423285, 19.550141, 0), App.Vector(-21.423285, 12.5, 0)), False)
sketch10.addGeometry(Part.LineSegment(App.Vector(-21.423285, 12.5, 0), App.Vector(-13.806627, 12.5, 0)), False)
sketch10.addConstraint(Sketcher.Constraint("Coincident", 0, 2, 1, 1))
sketch10.addConstraint(Sketcher.Constraint("Tangent", 1, 2, 2, 1))
sketch10.addConstraint(Sketcher.Constraint("Tangent", 2, 2, 3, 1))
sketch10.addConstraint(Sketcher.Constraint("Coincident", 3, 2, 4, 1))
sketch10.addConstraint(Sketcher.Constraint("Coincident", 4, 2, 5, 1))
sketch10.addConstraint(Sketcher.Constraint("Coincident", 5, 2, 0, 1))
sketch10.addConstraint(Sketcher.Constraint("Vertical", 0))
sketch10.addConstraint(Sketcher.Constraint("Vertical", 4))
sketch10.addConstraint(Sketcher.Constraint("Horizontal", 5))
sketch10.addConstraint(Sketcher.Constraint("Parallel", 1, 3))
sketch10.addConstraint(Sketcher.Constraint("Radius", 2, 4.0))
sketch10.addConstraint(Sketcher.Constraint("DistanceX", 2, 3, -1, 1, 17.0))
sketch10.addConstraint(Sketcher.Constraint("DistanceY", 4, 2, 2, 3, 8.0))
sketch10.addConstraint(Sketcher.Constraint("DistanceY", -1, 1, 2, 3, 20.5))
sketch10.addConstraint(Sketcher.Constraint("DistanceX", 5, 1, 5, 2, 7.616658))
sketch10.addConstraint(Sketcher.Constraint("DistanceY", 0, 1, 0, 2, 4.584049))
sketch10.addConstraint(Sketcher.Constraint("DistanceY", 4, 2, 4, 1, 7.050141))
sketch10.setExpression("Constraints[10]", "Params.sketch10_radius")
pad9 = body.newObject("PartDesign::Pad", "Pad008")
pad9.Profile = sketch10
pad9.setExpression("Length", "Params.pad9_length")
pad9.Midplane = True

# Sketch on YZ plane
sketch11 = body.newObject("Sketcher::SketchObject", "Sketch010")
sketch11.AttachmentSupport = (doc.getObject("YZ_Plane"), [""])
sketch11.MapMode = "FlatFace"
sketch11.AttachmentOffset = App.Placement(App.Vector(0, 0, 12.5), App.Rotation())
add_polygon(sketch11, [(-25.098984, -14.233775), (-20, 8.766255), (-20, -15.364193)])  # lines 0-2
sketch11.addConstraint(Sketcher.Constraint("Vertical", 1))
sketch11.addConstraint(Sketcher.Constraint("Perpendicular", 0, 2))
sketch11.addConstraint(Sketcher.Constraint("DistanceX", 0, 2, -1, 1, 20.0))
sketch11.addConstraint(Sketcher.Constraint("Angle", 0, Q("77.5 deg")))
sketch11.addConstraint(Sketcher.Constraint("DistanceY", 1, 2, 1, 1, 24.130448))
sketch11.addConstraint(Sketcher.Constraint("DistanceY", -1, 1, 0, 2, 8.766255))
pad10 = body.newObject("PartDesign::Pad", "Pad009")
pad10.Profile = sketch11
pad10.setExpression("Length", "Params.pad10_length")
pad10.Reversed = True

# Sketch on an angled plane
sketch12 = body.newObject("Sketcher::SketchObject", "Sketch011")
sketch12.Placement = App.Placement(App.Vector(0, -0.936922, -4.226183), App.Rotation(App.Vector(0, 0.976296007, -0.216439614), App.Vector(1, 0, 0), App.Vector(0, -0.216439614, -0.976296007), "ZXY"))
sketch12.addGeometry(Part.Circle(App.Vector(-17, 20.5, 0), App.Vector(0, 0, 1), 1.5), False)
sketch12.addConstraint(Sketcher.Constraint("Diameter", 0, 3.0))
sketch12.addConstraint(Sketcher.Constraint("DistanceX", 0, 3, -1, 1, 17.0))
sketch12.addConstraint(Sketcher.Constraint("DistanceY", -1, 1, 0, 3, 20.5))
sketch12.setExpression("Constraints[0]", "Params.sketch12_diameter")
pocket2 = body.newObject("PartDesign::Pocket", "Pocket001")
pocket2.Profile = sketch12
pocket2.setExpression("Length", "Params.pocket2_length")
pocket2.Midplane = True
doc.recompute()

mirrored2 = body.newObject("PartDesign::Mirrored", "Mirrored001")
mirrored2.Originals = [pad9, pad10, pocket2]
mirrored2.MirrorPlane = (doc.getObject("YZ_Plane"), [""])
body.Tip = mirrored2

doc.recompute()
